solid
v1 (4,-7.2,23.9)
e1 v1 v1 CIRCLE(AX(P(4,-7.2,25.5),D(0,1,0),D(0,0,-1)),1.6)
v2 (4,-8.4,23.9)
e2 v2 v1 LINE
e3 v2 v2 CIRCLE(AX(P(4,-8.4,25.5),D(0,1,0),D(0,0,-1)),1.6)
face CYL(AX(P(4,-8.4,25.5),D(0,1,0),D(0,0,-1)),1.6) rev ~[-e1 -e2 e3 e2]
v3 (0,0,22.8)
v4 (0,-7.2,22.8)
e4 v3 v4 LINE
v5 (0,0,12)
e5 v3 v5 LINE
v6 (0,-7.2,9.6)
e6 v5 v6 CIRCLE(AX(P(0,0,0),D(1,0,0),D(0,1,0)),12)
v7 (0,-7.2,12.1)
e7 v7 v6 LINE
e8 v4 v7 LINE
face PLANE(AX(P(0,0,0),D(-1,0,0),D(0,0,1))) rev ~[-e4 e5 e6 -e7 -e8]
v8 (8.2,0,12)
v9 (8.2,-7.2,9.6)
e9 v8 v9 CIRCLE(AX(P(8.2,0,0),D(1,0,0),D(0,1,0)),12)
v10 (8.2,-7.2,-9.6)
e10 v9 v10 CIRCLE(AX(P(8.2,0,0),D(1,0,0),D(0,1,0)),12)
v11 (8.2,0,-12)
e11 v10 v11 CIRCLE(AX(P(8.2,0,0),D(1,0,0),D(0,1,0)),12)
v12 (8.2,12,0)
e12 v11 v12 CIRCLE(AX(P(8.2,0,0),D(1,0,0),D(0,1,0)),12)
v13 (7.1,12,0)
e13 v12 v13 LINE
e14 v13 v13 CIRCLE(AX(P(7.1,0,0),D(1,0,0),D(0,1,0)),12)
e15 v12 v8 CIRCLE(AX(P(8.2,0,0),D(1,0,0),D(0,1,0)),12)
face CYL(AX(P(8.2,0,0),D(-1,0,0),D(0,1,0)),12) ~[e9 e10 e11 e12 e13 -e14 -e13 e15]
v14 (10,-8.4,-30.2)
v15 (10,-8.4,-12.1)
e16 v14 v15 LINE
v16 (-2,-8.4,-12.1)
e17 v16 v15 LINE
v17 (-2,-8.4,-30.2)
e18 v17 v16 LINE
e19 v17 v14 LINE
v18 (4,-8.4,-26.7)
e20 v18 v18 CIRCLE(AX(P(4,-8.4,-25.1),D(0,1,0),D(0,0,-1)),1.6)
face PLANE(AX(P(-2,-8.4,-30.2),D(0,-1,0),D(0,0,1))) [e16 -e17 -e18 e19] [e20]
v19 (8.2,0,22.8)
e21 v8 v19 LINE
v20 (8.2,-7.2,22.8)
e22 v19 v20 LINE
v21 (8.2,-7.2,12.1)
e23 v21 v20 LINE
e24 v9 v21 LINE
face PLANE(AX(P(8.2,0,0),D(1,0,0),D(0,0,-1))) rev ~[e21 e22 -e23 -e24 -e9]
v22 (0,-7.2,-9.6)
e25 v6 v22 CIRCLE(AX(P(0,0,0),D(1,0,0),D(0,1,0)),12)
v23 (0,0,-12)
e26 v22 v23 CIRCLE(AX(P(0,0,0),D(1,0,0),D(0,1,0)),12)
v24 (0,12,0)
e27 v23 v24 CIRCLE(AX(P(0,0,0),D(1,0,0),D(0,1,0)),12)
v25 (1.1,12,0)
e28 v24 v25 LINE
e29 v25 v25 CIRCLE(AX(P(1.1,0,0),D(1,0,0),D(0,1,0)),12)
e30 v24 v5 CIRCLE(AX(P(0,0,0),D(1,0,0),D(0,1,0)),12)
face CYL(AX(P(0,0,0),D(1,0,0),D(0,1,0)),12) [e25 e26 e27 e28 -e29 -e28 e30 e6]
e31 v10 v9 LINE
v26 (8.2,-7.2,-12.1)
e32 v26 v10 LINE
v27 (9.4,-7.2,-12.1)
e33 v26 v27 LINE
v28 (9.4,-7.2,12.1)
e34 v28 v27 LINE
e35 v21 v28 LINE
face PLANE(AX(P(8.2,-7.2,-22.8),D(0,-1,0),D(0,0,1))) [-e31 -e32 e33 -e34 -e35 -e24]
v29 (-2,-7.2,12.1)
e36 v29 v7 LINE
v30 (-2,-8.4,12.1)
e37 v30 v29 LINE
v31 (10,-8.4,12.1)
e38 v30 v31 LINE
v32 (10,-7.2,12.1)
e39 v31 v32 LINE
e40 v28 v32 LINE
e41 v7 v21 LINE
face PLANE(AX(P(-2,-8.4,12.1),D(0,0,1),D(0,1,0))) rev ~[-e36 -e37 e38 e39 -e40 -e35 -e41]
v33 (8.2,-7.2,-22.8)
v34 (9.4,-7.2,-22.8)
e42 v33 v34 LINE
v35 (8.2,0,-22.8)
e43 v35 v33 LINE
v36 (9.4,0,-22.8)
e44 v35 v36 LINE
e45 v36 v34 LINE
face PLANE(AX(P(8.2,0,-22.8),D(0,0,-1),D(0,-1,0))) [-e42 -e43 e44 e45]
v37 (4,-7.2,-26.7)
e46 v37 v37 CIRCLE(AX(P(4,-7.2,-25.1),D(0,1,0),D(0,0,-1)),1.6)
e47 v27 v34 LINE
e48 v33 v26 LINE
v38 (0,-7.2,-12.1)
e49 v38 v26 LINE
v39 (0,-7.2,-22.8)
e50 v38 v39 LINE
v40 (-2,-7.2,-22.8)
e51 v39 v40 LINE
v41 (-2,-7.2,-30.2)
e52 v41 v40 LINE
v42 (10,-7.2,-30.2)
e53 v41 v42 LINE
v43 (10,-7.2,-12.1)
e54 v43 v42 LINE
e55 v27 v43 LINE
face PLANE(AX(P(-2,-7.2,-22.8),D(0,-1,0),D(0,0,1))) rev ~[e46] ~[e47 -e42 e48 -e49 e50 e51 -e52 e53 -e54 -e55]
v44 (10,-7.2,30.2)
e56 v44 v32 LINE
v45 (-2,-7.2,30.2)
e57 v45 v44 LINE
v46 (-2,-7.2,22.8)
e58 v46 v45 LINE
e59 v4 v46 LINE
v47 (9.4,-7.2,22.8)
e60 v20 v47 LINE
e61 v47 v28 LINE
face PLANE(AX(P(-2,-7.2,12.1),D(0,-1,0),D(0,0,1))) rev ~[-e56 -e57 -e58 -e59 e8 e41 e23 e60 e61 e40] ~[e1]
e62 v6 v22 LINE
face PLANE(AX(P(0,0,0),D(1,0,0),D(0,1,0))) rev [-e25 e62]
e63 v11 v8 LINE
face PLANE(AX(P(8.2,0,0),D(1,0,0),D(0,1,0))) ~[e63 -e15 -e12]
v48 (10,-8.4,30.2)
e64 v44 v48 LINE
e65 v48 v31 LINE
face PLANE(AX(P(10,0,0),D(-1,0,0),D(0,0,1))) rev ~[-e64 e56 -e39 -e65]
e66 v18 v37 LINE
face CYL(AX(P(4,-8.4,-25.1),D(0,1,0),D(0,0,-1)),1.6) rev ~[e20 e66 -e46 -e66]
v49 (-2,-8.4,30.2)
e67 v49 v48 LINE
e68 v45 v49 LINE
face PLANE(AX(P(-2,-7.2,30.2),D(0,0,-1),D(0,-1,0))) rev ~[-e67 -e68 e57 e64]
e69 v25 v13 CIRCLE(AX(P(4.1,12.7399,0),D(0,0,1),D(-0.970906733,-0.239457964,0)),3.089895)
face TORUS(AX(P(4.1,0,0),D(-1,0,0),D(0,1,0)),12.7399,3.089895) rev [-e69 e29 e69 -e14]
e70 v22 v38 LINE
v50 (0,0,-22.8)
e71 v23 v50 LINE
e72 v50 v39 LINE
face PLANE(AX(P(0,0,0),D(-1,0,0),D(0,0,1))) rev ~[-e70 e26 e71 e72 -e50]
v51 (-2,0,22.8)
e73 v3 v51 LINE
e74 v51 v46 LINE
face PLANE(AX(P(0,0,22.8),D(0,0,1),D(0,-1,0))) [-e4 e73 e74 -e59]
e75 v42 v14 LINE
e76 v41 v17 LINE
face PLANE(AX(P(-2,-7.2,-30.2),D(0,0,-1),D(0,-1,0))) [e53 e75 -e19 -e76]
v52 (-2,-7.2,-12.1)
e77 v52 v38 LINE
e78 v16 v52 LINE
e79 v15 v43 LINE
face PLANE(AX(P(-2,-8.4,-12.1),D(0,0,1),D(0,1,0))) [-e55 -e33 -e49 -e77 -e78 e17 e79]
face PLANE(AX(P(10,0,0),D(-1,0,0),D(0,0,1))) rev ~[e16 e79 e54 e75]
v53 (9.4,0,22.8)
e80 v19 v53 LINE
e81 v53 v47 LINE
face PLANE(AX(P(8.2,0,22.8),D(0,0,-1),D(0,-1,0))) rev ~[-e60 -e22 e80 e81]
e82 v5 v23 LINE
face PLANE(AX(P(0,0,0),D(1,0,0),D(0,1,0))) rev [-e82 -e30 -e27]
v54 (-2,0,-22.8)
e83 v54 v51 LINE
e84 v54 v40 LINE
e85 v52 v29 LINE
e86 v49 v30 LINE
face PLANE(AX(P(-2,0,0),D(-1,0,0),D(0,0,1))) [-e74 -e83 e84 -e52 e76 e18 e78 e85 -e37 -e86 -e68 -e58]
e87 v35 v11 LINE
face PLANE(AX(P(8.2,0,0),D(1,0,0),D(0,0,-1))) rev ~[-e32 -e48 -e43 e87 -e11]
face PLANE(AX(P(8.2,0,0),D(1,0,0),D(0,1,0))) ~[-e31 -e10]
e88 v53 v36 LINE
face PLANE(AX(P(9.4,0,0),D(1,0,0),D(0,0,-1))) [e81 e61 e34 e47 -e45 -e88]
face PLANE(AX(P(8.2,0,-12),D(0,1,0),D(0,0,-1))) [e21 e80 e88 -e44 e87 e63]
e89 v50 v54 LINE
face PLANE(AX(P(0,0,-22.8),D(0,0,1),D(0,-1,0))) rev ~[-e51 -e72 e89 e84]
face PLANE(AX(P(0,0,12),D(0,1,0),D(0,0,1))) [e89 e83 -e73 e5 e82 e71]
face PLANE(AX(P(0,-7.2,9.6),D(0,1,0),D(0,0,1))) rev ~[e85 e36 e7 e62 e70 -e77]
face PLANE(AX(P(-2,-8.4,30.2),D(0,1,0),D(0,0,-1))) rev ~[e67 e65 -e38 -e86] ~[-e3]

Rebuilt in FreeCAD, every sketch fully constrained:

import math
import FreeCAD as App
import Part
import Sketcher
from FreeCAD import Vector

doc = App.newDocument("Part")
body = doc.addObject("PartDesign::Body", "Body")

# Sketch on XY plane
sketch1 = doc.addObject("Sketcher::SketchObject", "Sketch")
body.addObject(sketch1)
sketch1.AttachmentSupport = (doc.XY_Plane, [""])
sketch1.MapMode = "FlatFace"
sketch1.addGeometry(Part.LineSegment(Vector(0, 12, 0), Vector(0, 0, 0)), False)
sketch1.addGeometry(Part.LineSegment(Vector(0, 0, 0), Vector(8.2, 0, 0)), False)
sketch1.addGeometry(Part.LineSegment(Vector(8.2, 0, 0), Vector(8.2, 12, 0)), False)
sketch1.addGeometry(Part.LineSegment(Vector(8.2, 12, 0), Vector(7.1, 12, 0)), False)
sketch1.addGeometry(Part.ArcOfCircle(Part.Circle(Vector(4.1, 12.7399, 0), Vector(0, 0, 1), 3.089895), math.radians(-166.145449), math.radians(-13.854551)), False)
sketch1.addGeometry(Part.LineSegment(Vector(1.1, 12, 0), Vector(0, 12, 0)), False)
sketch1.addConstraint(Sketcher.Constraint("Coincident", 0, 2, 1, 1))
sketch1.addConstraint(Sketcher.Constraint("Coincident", 1, 2, 2, 1))
sketch1.addConstraint(Sketcher.Constraint("Coincident", 2, 2, 3, 1))
sketch1.addConstraint(Sketcher.Constraint("Coincident", 3, 2, 4, 2))
sketch1.addConstraint(Sketcher.Constraint("Coincident", 4, 1, 5, 1))
sketch1.addConstraint(Sketcher.Constraint("Coincident", 5, 2, 0, 1))
sketch1.addConstraint(Sketcher.Constraint("Vertical", 0))
sketch1.addConstraint(Sketcher.Constraint("Horizontal", 1))
sketch1.addConstraint(Sketcher.Constraint("Vertical", 2))
sketch1.addConstraint(Sketcher.Constraint("Horizontal", 3))
sketch1.addConstraint(Sketcher.Constraint("Horizontal", 5))
sketch1.addConstraint(Sketcher.Constraint("Coincident", 0, 2, -1, 1))
sketch1.addConstraint(Sketcher.Constraint("Horizontal", 3, 2, 4, 1))
sketch1.addConstraint(Sketcher.Constraint("Equal", 3, 5))
sketch1.addConstraint(Sketcher.Constraint("DistanceY", 0, 2, 0, 1, 12.0))
sketch1.addConstraint(Sketcher.Constraint("DistanceX", 1, 1, 1, 2, 8.2))
sketch1.addConstraint(Sketcher.Constraint("DistanceX", 3, 2, 3, 1, 1.1))
sketch1.addConstraint(Sketcher.Constraint("Radius", 4, 3.09))
revolution = doc.addObject("PartDesign::Revolution", "Revolution")
body.addObject(revolution)
revolution.Profile = sketch1
revolution.ReferenceAxis = (sketch1, ["H_Axis"])
revolution.Angle = 360

# Sketch on YZ plane
sketch2 = doc.addObject("Sketcher::SketchObject", "Sketch001")
body.addObject(sketch2)
sketch2.AttachmentSupport = (doc.YZ_Plane, [""])
sketch2.MapMode = "FlatFace"
sketch2.AttachmentOffset = App.Placement(Vector(0, 0, 8.2), App.Rotation())
sketch2.addGeometry(Part.LineSegment(Vector(0, -22.8, 0), Vector(0, 22.8, 0)), False)
sketch2.addGeometry(Part.LineSegment(Vector(0, 22.8, 0), Vector(-7.2, 22.8, 0)), False)
sketch2.addGeometry(Part.LineSegment(Vector(-7.2, 22.8, 0), Vector(-7.2, -22.8, 0)), False)
sketch2.addGeometry(Part.LineSegment(Vector(-7.2, -22.8, 0), Vector(0, -22.8, 0)), False)
sketch2.addConstraint(Sketcher.Constraint("Coincident", 0, 2, 1, 1))
sketch2.addConstraint(Sketcher.Constraint("Coincident", 1, 2, 2, 1))
sketch2.addConstraint(Sketcher.Constraint("Coincident", 2, 2, 3, 1))
sketch2.addConstraint(Sketcher.Constraint("Coincident", 3, 2, 0, 1))
sketch2.addConstraint(Sketcher.Constraint("Vertical", 0))
sketch2.addConstraint(Sketcher.Constraint("Horizontal", 1))
sketch2.addConstraint(Sketcher.Constraint("Vertical", 2))
sketch2.addConstraint(Sketcher.Constraint("Horizontal", 3))
sketch2.addConstraint(Sketcher.Constraint("Symmetric", 0, 2, 3, 2, -1, 1))
sketch2.addConstraint(Sketcher.Constraint("DistanceX", 1, 2, 1, 1, 7.2))
sketch2.addConstraint(Sketcher.Constraint("DistanceY", -1, 1, 0, 2, 22.8))
pad1 = doc.addObject("PartDesign::Pad", "Pad")
body.addObject(pad1)
pad1.Profile = sketch2
pad1.Length = 1.2

# Sketch on YZ plane
sketch3 = doc.addObject("Sketcher::SketchObject", "Sketch002")
body.addObject(sketch3)
sketch3.AttachmentSupport = (doc.YZ_Plane, [""])
sketch3.MapMode = "FlatFace"
sketch3.addGeometry(Part.LineSegment(Vector(0, 22.8, 0), Vector(0, -22.8, 0)), False)
sketch3.addGeometry(Part.LineSegment(Vector(0, -22.8, 0), Vector(-7.2, -22.8, 0)), False)
sketch3.addGeometry(Part.LineSegment(Vector(-7.2, -22.8, 0), Vector(-7.2, 22.8, 0)), False)
sketch3.addGeometry(Part.LineSegment(Vector(-7.2, 22.8, 0), Vector(0, 22.8, 0)), False)
sketch3.addConstraint(Sketcher.Constraint("Coincident", 0, 2, 1, 1))
sketch3.addConstraint(Sketcher.Constraint("Coincident", 1, 2, 2, 1))
sketch3.addConstraint(Sketcher.Constraint("Coincident", 2, 2, 3, 1))
sketch3.addConstraint(Sketcher.Constraint("Coincident", 3, 2, 0, 1))
sketch3.addConstraint(Sketcher.Constraint("Vertical", 0))
sketch3.addConstraint(Sketcher.Constraint("Horizontal", 1))
sketch3.addConstraint(Sketcher.Constraint("Vertical", 2))
sketch3.addConstraint(Sketcher.Constraint("Horizontal", 3))
sketch3.addConstraint(Sketcher.Constraint("Symmetric", 0, 2, 3, 2, -1, 1))
sketch3.addConstraint(Sketcher.Constraint("DistanceX", 1, 2, 1, 1, 7.2))
sketch3.addConstraint(Sketcher.Constraint("DistanceY", 0, 2, -1, 1, 22.8))
pad2 = doc.addObject("PartDesign::Pad", "Pad001")
body.addObject(pad2)
pad2.Profile = sketch3
pad2.Length = 2
pad2.Reversed = True

# Sketch on YZ plane
sketch4 = doc.addObject("Sketcher::SketchObject", "Sketch003")
body.addObject(sketch4)
sketch4.AttachmentSupport = (doc.YZ_Plane, [""])
sketch4.MapMode = "FlatFace"
sketch4.AttachmentOffset = App.Placement(Vector(0, 0, -2), App.Rotation())
sketch4.addGeometry(Part.LineSegment(Vector(-7.2, 30.2, 0), Vector(-7.2, 12.1, 0)), False)
sketch4.addGeometry(Part.LineSegment(Vector(-7.2, 12.1, 0), Vector(-8.4, 12.1, 0)), False)
sketch4.addGeometry(Part.LineSegment(Vector(-8.4, 12.1, 0), Vector(-8.4, 30.2, 0)), False)
sketch4.addGeometry(Part.LineSegment(Vector(-8.4, 30.2, 0), Vector(-7.2, 30.2, 0)), False)
sketch4.addGeometry(Part.LineSegment(Vector(-7.2, -12.1, 0), Vector(-7.2, -30.2, 0)), False)
sketch4.addGeometry(Part.LineSegment(Vector(-7.2, -30.2, 0), Vector(-8.4, -30.2, 0)), False)
sketch4.addGeometry(Part.LineSegment(Vector(-8.4, -30.2, 0), Vector(-8.4, -12.1, 0)), False)
sketch4.addGeometry(Part.LineSegment(Vector(-8.4, -12.1, 0), Vector(-7.2, -12.1, 0)), False)
sketch4.addConstraint(Sketcher.Constraint("Coincident", 0, 2, 1, 1))
sketch4.addConstraint(Sketcher.Constraint("Coincident", 1, 2, 2, 1))
sketch4.addConstraint(Sketcher.Constraint("Coincident", 2, 2, 3, 1))
sketch4.addConstraint(Sketcher.Constraint("Coincident", 3, 2, 0, 1))
sketch4.addConstraint(Sketcher.Constraint("Coincident", 4, 2, 5, 1))
sketch4.addConstraint(Sketcher.Constraint("Coincident", 5, 2, 6, 1))
sketch4.addConstraint(Sketcher.Constraint("Coincident", 6, 2, 7, 1))
sketch4.addConstraint(Sketcher.Constraint("Coincident", 7, 2, 4, 1))
sketch4.addConstraint(Sketcher.Constraint("Vertical", 0))
sketch4.addConstraint(Sketcher.Constraint("Horizontal", 1))
sketch4.addConstraint(Sketcher.Constraint("Vertical", 2))
sketch4.addConstraint(Sketcher.Constraint("Horizontal", 3))
sketch4.addConstraint(Sketcher.Constraint("Vertical", 4))
sketch4.addConstraint(Sketcher.Constraint("Horizontal", 5))
sketch4.addConstraint(Sketcher.Constraint("Vertical", 6))
sketch4.addConstraint(Sketcher.Constraint("Horizontal", 7))
sketch4.addConstraint(Sketcher.Constraint("Symmetric", 3, 2, 4, 2, -1))
sketch4.addConstraint(Sketcher.Constraint("Symmetric", 1, 2, 6, 2, -1))
sketch4.addConstraint(Sketcher.Constraint("DistanceX", 1, 2, 1, 1, 1.2))
sketch4.addConstraint(Sketcher.Constraint("DistanceY", 0, 2, 0, 1, 18.1))
sketch4.addConstraint(Sketcher.Constraint("DistanceY", -1, 1, 0, 2, 12.1))
sketch4.addConstraint(Sketcher.Constraint("DistanceX", 0, 2, -1, 1, 7.2))
pad3 = doc.addObject("PartDesign::Pad", "Pad002")
body.addObject(pad3)
pad3.Profile = sketch4
pad3.Length = 12

# Sketch on XZ plane
sketch5 = doc.addObject("Sketcher::SketchObject", "Sketch004")
body.addObject(sketch5)
sketch5.AttachmentSupport = (doc.XZ_Plane, [""])
sketch5.MapMode = "FlatFace"
sketch5.AttachmentOffset = App.Placement(Vector(0, 0, 8.4), App.Rotation())
sketch5.addGeometry(Part.Circle(Vector(4, 25.5, 0), Vector(0, 0, 1), 1.6), False)
sketch5.addGeometry(Part.Circle(Vector(4, -25.1, 0), Vector(0, 0, 1), 1.6), False)
sketch5.addConstraint(Sketcher.Constraint("Equal", 0, 1))
sketch5.addConstraint(Sketcher.Constraint("Vertical", 0, 3, 1, 3))
sketch5.addConstraint(Sketcher.Constraint("Diameter", 0, 3.2))
sketch5.addConstraint(Sketcher.Constraint("DistanceX", -1, 1, 0, 3, 4.0))
sketch5.addConstraint(Sketcher.Constraint("DistanceY", -1, 1, 0, 3, 25.5))
sketch5.addConstraint(Sketcher.Constraint("DistanceY", 1, 3, -1, 1, 25.1))
doc.recompute()
hole = doc.addObject("PartDesign::Hole", "Hole")
body.addObject(hole)
hole.Profile = sketch5
hole.ThreadType = "None"
hole.Diameter = 3.2
hole.DepthType = "Dimension"
hole.Depth = 8
hole.DrillPoint = "Angled"
hole.DrillPointAngle = 118

doc.recompute()
